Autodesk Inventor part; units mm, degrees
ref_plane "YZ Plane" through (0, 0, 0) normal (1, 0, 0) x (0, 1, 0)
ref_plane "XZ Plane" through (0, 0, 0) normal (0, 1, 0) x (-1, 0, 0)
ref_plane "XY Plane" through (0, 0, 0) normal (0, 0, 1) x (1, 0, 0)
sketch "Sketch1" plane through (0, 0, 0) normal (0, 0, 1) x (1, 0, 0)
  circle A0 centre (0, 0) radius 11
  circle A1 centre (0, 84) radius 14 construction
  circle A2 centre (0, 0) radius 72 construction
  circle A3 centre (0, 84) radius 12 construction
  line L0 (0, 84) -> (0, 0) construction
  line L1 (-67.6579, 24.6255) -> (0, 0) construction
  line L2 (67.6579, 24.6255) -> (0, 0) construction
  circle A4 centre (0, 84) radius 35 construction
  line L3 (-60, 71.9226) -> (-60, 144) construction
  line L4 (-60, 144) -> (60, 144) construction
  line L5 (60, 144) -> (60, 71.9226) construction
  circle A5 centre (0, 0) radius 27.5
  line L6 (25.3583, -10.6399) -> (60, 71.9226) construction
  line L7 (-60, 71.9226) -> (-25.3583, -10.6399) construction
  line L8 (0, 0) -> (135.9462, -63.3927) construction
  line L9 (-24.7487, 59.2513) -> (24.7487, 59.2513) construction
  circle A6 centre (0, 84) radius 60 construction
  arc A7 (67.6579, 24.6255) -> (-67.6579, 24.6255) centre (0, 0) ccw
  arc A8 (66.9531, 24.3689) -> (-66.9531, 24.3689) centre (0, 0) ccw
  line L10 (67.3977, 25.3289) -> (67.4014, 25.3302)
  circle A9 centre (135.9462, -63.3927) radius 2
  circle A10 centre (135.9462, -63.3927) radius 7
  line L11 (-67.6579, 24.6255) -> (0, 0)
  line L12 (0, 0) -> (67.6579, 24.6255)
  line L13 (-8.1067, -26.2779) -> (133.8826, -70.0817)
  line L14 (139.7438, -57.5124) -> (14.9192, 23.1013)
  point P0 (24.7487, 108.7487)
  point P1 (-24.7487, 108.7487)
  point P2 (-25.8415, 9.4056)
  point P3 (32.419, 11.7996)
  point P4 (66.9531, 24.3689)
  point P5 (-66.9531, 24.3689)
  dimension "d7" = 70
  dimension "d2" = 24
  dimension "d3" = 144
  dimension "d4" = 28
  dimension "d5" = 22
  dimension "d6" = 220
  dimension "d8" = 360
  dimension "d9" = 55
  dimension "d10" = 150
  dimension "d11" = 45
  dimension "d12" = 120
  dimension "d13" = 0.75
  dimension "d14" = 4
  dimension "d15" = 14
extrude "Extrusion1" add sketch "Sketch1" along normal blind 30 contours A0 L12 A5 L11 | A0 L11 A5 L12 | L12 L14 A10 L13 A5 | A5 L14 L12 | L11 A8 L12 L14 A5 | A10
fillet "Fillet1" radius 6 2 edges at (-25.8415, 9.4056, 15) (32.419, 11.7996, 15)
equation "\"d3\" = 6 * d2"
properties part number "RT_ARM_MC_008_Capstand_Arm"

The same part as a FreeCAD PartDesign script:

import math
import FreeCAD as App
import Part
import Sketcher

V = App.Vector
Q = App.Units.Quantity


def edges_at(feature, points):
    """Names of the edges that pass closest to the given points."""
    edges = feature.Shape.Edges
    near = lambda p: min(range(len(edges)), key=lambda i: edges[i].distToShape(Part.Vertex(*p))[0])
    return sorted({f"Edge{near(p) + 1}" for p in points})

doc = App.newDocument("Part")
body = doc.addObject("PartDesign::Body", "Body")

sketch1 = doc.addObject("Sketcher::SketchObject", "Sketch")
body.addObject(sketch1)
sketch1.AttachmentSupport = (doc.XY_Plane, [""])
sketch1.MapMode = "FlatFace"
sketch1.addGeometry(Part.ArcOfCircle(Part.Circle(V(0, 0, 0), V(0, 0, 1), 27.5), math.radians(160), math.radians(253)), False)
sketch1.addGeometry(Part.LineSegment(V(-8.1, -26.3, 0), V(133.9, -70.1, 0)), False)
sketch1.addGeometry(Part.ArcOfCircle(Part.Circle(V(135.9, -63.4, 0), V(0, 0, 1), 7), math.radians(-107), math.radians(57)), False)
sketch1.addGeometry(Part.LineSegment(V(139.7, -57.5, 0), V(32.4, 11.8, 0)), False)
sketch1.addGeometry(Part.LineSegment(V(32.4, 11.8, 0), V(67, 24.4, 0)), False)
sketch1.addGeometry(Part.ArcOfCircle(Part.Circle(V(0, 0, 0), V(0, 0, 1), 71.2), math.radians(20), math.radians(160)), False)
sketch1.addGeometry(Part.LineSegment(V(-67, 24.4, 0), V(-25.8, 9.4, 0)), False)
sketch1.addGeometry(Part.Circle(V(0, 0, 0), V(0, 0, 1), 11), False)
sketch1.addGeometry(Part.Circle(V(135.9, -63.4, 0), V(0, 0, 1), 2), False)
sketch1.addConstraint(Sketcher.Constraint("Tangent", 0, 2, 1, 1))
sketch1.addConstraint(Sketcher.Constraint("Tangent", 1, 2, 2, 1))
sketch1.addConstraint(Sketcher.Constraint("Tangent", 2, 2, 3, 1))
sketch1.addConstraint(Sketcher.Constraint("Coincident", 3, 2, 4, 1))
sketch1.addConstraint(Sketcher.Constraint("Coincident", 4, 2, 5, 1))
sketch1.addConstraint(Sketcher.Constraint("Coincident", 5, 2, 6, 1))
sketch1.addConstraint(Sketcher.Constraint("Coincident", 6, 2, 0, 1))
sketch1.addConstraint(Sketcher.Constraint("Coincident", 0, 3, -1, 1))
sketch1.addConstraint(Sketcher.Constraint("Coincident", 5, 3, -1, 1))
sketch1.addConstraint(Sketcher.Constraint("Coincident", 7, 3, -1, 1))
sketch1.addConstraint(Sketcher.Constraint("Coincident", 8, 3, 2, 3))
sketch1.addConstraint(Sketcher.Constraint("Horizontal", 4, 2, 5, 2))
sketch1.addConstraint(Sketcher.Constraint("Diameter", 7, Q("22 mm")))
sketch1.addConstraint(Sketcher.Constraint("Diameter", 8, Q("4 mm")))
sketch1.addConstraint(Sketcher.Constraint("Radius", 2, Q("7 mm")))
sketch1.addConstraint(Sketcher.Constraint("Radius", 0, Q("27.5 mm")))
sketch1.addConstraint(Sketcher.Constraint("Angle", 4, Q("20 deg")))
sketch1.addConstraint(Sketcher.Constraint("Angle", 6, Q("-20 deg")))
sketch1.addConstraint(Sketcher.Constraint("Radius", 5, Q("71.25 mm")))
sketch1.addConstraint(Sketcher.Constraint("DistanceY", 0, 2, -1, 1, Q("26.278 mm")))
sketch1.addConstraint(Sketcher.Constraint("DistanceX", -1, 1, 3, 2, Q("32.419 mm")))
sketch1.addConstraint(Sketcher.Constraint("DistanceX", -1, 1, 4, 2, Q("66.953 mm")))
sketch1.addConstraint(Sketcher.Constraint("DistanceX", 0, 2, 2, 3, Q("144.053 mm")))
pad1 = doc.addObject("PartDesign::Pad", "Pad")
body.addObject(pad1)
pad1.Profile = sketch1
pad1.Length = 30
doc.recompute()

fillet = doc.addObject("PartDesign::Fillet", "Fillet")
body.addObject(fillet)
fillet.Base = (pad1, edges_at(pad1, [(-25.841, 9.406, 15), (32.419, 11.8, 15)]))
fillet.Radius = 6

doc.recompute()
